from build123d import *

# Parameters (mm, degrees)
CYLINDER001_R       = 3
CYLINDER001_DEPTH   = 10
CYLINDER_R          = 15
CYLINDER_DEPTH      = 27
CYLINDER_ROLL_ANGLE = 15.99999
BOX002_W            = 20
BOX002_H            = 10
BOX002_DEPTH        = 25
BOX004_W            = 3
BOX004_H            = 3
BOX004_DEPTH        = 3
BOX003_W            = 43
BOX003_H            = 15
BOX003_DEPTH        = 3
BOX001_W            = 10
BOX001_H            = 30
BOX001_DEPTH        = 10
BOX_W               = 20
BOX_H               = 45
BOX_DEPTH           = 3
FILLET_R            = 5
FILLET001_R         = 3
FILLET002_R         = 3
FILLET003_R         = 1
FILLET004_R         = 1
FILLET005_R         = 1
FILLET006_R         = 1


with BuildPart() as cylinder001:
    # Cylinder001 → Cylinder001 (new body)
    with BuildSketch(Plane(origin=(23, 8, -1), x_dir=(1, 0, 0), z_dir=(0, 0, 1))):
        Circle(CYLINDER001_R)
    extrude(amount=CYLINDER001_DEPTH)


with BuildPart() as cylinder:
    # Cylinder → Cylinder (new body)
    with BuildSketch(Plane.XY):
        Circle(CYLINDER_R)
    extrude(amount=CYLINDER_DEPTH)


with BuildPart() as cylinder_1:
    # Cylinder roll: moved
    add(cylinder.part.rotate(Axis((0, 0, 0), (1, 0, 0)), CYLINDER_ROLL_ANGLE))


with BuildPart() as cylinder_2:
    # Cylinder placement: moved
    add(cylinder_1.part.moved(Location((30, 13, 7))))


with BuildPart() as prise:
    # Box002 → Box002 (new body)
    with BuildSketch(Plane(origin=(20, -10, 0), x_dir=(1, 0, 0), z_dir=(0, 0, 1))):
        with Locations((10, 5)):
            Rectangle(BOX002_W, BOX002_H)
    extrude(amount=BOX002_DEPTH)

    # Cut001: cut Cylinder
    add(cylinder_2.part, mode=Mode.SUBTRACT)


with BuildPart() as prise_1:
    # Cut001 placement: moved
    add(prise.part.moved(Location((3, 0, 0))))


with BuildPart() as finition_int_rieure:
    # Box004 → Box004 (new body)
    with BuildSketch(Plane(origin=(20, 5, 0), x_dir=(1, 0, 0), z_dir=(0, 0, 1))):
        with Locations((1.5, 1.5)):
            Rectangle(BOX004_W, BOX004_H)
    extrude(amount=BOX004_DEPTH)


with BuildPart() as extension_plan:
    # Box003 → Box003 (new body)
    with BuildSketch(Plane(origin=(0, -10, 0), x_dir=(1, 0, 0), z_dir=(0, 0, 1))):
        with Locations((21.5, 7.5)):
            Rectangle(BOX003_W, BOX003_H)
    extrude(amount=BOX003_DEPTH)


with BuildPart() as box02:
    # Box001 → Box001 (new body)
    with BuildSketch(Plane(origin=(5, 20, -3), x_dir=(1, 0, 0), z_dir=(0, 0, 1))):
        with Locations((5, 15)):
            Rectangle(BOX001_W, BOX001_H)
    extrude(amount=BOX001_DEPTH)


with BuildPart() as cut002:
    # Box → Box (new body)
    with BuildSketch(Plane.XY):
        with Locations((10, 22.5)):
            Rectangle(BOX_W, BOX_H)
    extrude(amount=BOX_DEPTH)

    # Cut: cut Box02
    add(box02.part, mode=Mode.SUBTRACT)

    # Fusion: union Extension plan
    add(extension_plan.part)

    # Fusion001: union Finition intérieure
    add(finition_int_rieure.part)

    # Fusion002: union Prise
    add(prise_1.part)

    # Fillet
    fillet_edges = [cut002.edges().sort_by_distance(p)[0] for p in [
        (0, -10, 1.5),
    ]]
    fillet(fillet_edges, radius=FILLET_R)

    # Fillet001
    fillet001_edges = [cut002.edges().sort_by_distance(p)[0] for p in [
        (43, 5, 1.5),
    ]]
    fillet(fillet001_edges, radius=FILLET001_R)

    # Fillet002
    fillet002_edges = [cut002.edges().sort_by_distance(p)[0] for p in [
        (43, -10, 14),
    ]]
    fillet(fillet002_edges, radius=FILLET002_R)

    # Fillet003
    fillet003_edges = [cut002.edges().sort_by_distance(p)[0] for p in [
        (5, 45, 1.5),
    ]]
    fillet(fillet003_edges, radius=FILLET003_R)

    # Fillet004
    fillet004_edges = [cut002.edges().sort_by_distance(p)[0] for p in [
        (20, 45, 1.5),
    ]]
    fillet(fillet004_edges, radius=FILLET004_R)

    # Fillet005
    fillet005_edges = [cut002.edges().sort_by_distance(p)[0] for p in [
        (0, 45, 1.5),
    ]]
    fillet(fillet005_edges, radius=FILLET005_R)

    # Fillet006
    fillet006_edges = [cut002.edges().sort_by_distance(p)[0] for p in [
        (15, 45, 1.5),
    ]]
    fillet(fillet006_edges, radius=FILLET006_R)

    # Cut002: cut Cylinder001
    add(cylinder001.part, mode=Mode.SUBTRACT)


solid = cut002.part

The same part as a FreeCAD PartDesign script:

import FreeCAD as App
import Part
import Sketcher
Q = App.Units.Quantity


def edges_at(feature, points):
    """Names of the edges that pass closest to the given points."""
    edges = feature.Shape.Edges
    near = lambda p: min(range(len(edges)), key=lambda i: edges[i].distToShape(Part.Vertex(*p))[0])
    return sorted({f"Edge{near(p) + 1}" for p in points})

doc = App.newDocument("Part")
params = doc.addObject("Spreadsheet::Sheet", "Params")
for row, (alias, value) in enumerate([
    ("sketch1_diameter", "6 mm"),
    ("pad1_length", "10 mm"),
    ("sketch2_diameter", "30 mm"),
    ("pad2_length", "27 mm"),
    ("sketch3_width", "20 mm"),
    ("sketch3_height", "10 mm"),
    ("pad3_length", "25 mm"),
    ("sketch4_width", "3 mm"),
    ("pad4_length", "3 mm"),
    ("sketch5_width", "43 mm"),
    ("sketch5_height", "15 mm"),
    ("pad5_length", "3 mm"),
    ("sketch6_width", "10 mm"),
    ("sketch6_height", "30 mm"),
    ("pad6_length", "10 mm"),
    ("sketch7_width", "20 mm"),
    ("sketch7_height", "45 mm"),
    ("pad7_length", "3 mm"),
    ("fillet_radius", "5 mm"),
    ("fillet2_radius", "3 mm"),
    ("fillet3_radius", "3 mm"),
    ("fillet4_radius", "1 mm"),
    ("fillet5_radius", "1 mm"),
    ("fillet6_radius", "1 mm"),
    ("fillet7_radius", "1 mm"),
], start=1):
    params.set(f"A{row}", alias)
    params.set(f"B{row}", "=" + value)
    params.setAlias(f"B{row}", alias)

body = doc.addObject("PartDesign::Body", "Body")

# Sketch on XY plane
sketch1 = body.newObject("Sketcher::SketchObject", "Sketch")
sketch1.AttachmentSupport = (doc.getObject("XY_Plane"), [""])
sketch1.MapMode = "FlatFace"
sketch1.AttachmentOffset = App.Placement(App.Vector(0, 0, -1), App.Rotation())
sketch1.addGeometry(Part.Circle(App.Vector(23, 8, 0), App.Vector(0, 0, 1), 3), False)
sketch1.addConstraint([
    Sketcher.Constraint("Diameter", 0, Q("6 mm")),
    Sketcher.Constraint("DistanceX", -1, 1, 0, 3, Q("23 mm")),
    Sketcher.Constraint("DistanceY", -1, 1, 0, 3, Q("8 mm")),
])
sketch1.setExpression("Constraints[0]", "Params.sketch1_diameter")
pad1 = body.newObject("PartDesign::Pad", "Pad")
pad1.Profile = sketch1
pad1.setExpression("Length", "Params.pad1_length")
body2 = doc.addObject("PartDesign::Body", "Body001")

# Sketch on XY plane
sketch2 = body2.newObject("Sketcher::SketchObject", "Sketch001")
sketch2.AttachmentSupport = (doc.getObject("XY_Plane001"), [""])
sketch2.MapMode = "FlatFace"
sketch2.addGeometry(Part.Circle(App.Vector(0, 0, 0), App.Vector(0, 0, 1), 15), False)
sketch2.addConstraint([
    Sketcher.Constraint("Coincident", 0, 3, -1, 1),
    Sketcher.Constraint("Diameter", 0, Q("30 mm")),
])
sketch2.setExpression("Constraints[1]", "Params.sketch2_diameter")
pad2 = body2.newObject("PartDesign::Pad", "Pad001")
pad2.Profile = sketch2
pad2.setExpression("Length", "Params.pad2_length")
body3 = doc.addObject("PartDesign::Body", "Body002")
doc.recompute()

body2.Placement = App.Placement(App.Vector(0, 0, 0), App.Rotation(App.Vector(1, 0, 0), 15.99999))
boolean = body3.newObject("PartDesign::Boolean", "Boolean")
boolean.Type = "Fuse"
boolean.addObjects([body2])
body4 = doc.addObject("PartDesign::Body", "Body003")
doc.recompute()

body3.Placement = App.Placement(App.Vector(30, 13, 7), App.Rotation(App.Vector(0, 0, 1), 0))
boolean2 = body4.newObject("PartDesign::Boolean", "Boolean001")
boolean2.Type = "Fuse"
boolean2.addObjects([body3])
body5 = doc.addObject("PartDesign::Body", "Body004")

# Sketch on XY plane
sketch3 = body5.newObject("Sketcher::SketchObject", "Sketch002")
sketch3.AttachmentSupport = (doc.getObject("XY_Plane004"), [""])
sketch3.MapMode = "FlatFace"
sketch3.addGeometry([
    Part.LineSegment(App.Vector(20, 0, 0), App.Vector(20, -10, 0)),
    Part.LineSegment(App.Vector(20, -10, 0), App.Vector(40, -10, 0)),
    Part.LineSegment(App.Vector(40, -10, 0), App.Vector(40, 0, 0)),
    Part.LineSegment(App.Vector(40, 0, 0), App.Vector(20, 0, 0)),
], False)
sketch3.addConstraint([
    Sketcher.Constraint("Coincident", 0, 2, 1, 1),
    Sketcher.Constraint("Coincident", 1, 2, 2, 1),
    Sketcher.Constraint("Coincident", 2, 2, 3, 1),
    Sketcher.Constraint("Coincident", 3, 2, 0, 1),
    Sketcher.Constraint("Vertical", 0),
    Sketcher.Constraint("Horizontal", 1),
    Sketcher.Constraint("Vertical", 2),
    Sketcher.Constraint("Horizontal", 3),
    Sketcher.Constraint("PointOnObject", 2, 2, -1),
    Sketcher.Constraint("DistanceX", 1, 1, 1, 2, Q("20 mm")),
    Sketcher.Constraint("DistanceY", 0, 2, 0, 1, Q("10 mm")),
    Sketcher.Constraint("DistanceX", -1, 1, 0, 2, Q("20 mm")),
])
sketch3.setExpression("Constraints[9]", "Params.sketch3_width")
sketch3.setExpression("Constraints[10]", "Params.sketch3_height")
pad3 = body5.newObject("PartDesign::Pad", "Pad002")
pad3.Profile = sketch3
pad3.setExpression("Length", "Params.pad3_length")
doc.recompute()

boolean3 = body5.newObject("PartDesign::Boolean", "Boolean002")
boolean3.Type = "Cut"
boolean3.addObjects([body4])
body6 = doc.addObject("PartDesign::Body", "Body005")
doc.recompute()

body5.Placement = App.Placement(App.Vector(3, 0, 0), App.Rotation(App.Vector(0, 0, 1), 0))
boolean4 = body6.newObject("PartDesign::Boolean", "Boolean003")
boolean4.Type = "Fuse"
boolean4.addObjects([body5])
body7 = doc.addObject("PartDesign::Body", "Body006")

# Sketch on XY plane
sketch4 = body7.newObject("Sketcher::SketchObject", "Sketch003")
sketch4.AttachmentSupport = (doc.getObject("XY_Plane006"), [""])
sketch4.MapMode = "FlatFace"
sketch4.addGeometry([
    Part.LineSegment(App.Vector(20, 8, 0), App.Vector(20, 5, 0)),
    Part.LineSegment(App.Vector(20, 5, 0), App.Vector(23, 5, 0)),
    Part.LineSegment(App.Vector(23, 5, 0), App.Vector(23, 8, 0)),
    Part.LineSegment(App.Vector(23, 8, 0), App.Vector(20, 8, 0)),
], False)
sketch4.addConstraint([
    Sketcher.Constraint("Coincident", 0, 2, 1, 1),
    Sketcher.Constraint("Coincident", 1, 2, 2, 1),
    Sketcher.Constraint("Coincident", 2, 2, 3, 1),
    Sketcher.Constraint("Coincident", 3, 2, 0, 1),
    Sketcher.Constraint("Vertical", 0),
    Sketcher.Constraint("Horizontal", 1),
    Sketcher.Constraint("Vertical", 2),
    Sketcher.Constraint("Horizontal", 3),
    Sketcher.Constraint("Equal", 3, 0),
    Sketcher.Constraint("DistanceX", 1, 1, 1, 2, Q("3 mm")),
    Sketcher.Constraint("DistanceX", -1, 1, 0, 2, Q("20 mm")),
    Sketcher.Constraint("DistanceY", -1, 1, 0, 2, Q("5 mm")),
])
sketch4.setExpression("Constraints[9]", "Params.sketch4_width")
pad4 = body7.newObject("PartDesign::Pad", "Pad003")
pad4.Profile = sketch4
pad4.setExpression("Length", "Params.pad4_length")
body8 = doc.addObject("PartDesign::Body", "Body007")

# Sketch on XY plane
sketch5 = body8.newObject("Sketcher::SketchObject", "Sketch004")
sketch5.AttachmentSupport = (doc.getObject("XY_Plane007"), [""])
sketch5.MapMode = "FlatFace"
sketch5.addGeometry([
    Part.LineSegment(App.Vector(0, 5, 0), App.Vector(0, -10, 0)),
    Part.LineSegment(App.Vector(0, -10, 0), App.Vector(43, -10, 0)),
    Part.LineSegment(App.Vector(43, -10, 0), App.Vector(43, 5, 0)),
    Part.LineSegment(App.Vector(43, 5, 0), App.Vector(0, 5, 0)),
], False)
sketch5.addConstraint([
    Sketcher.Constraint("Coincident", 0, 2, 1, 1),
    Sketcher.Constraint("Coincident", 1, 2, 2, 1),
    Sketcher.Constraint("Coincident", 2, 2, 3, 1),
    Sketcher.Constraint("Coincident", 3, 2, 0, 1),
    Sketcher.Constraint("Vertical", 0),
    Sketcher.Constraint("Horizontal", 1),
    Sketcher.Constraint("Vertical", 2),
    Sketcher.Constraint("Horizontal", 3),
    Sketcher.Constraint("PointOnObject", 0, 2, -2),
    Sketcher.Constraint("DistanceX", 1, 1, 1, 2, Q("43 mm")),
    Sketcher.Constraint("DistanceY", 0, 2, 0, 1, Q("15 mm")),
    Sketcher.Constraint("DistanceY", 0, 2, -1, 1, Q("10 mm")),
])
sketch5.setExpression("Constraints[9]", "Params.sketch5_width")
sketch5.setExpression("Constraints[10]", "Params.sketch5_height")
pad5 = body8.newObject("PartDesign::Pad", "Pad004")
pad5.Profile = sketch5
pad5.setExpression("Length", "Params.pad5_length")
body9 = doc.addObject("PartDesign::Body", "Body008")

# Sketch on XY plane
sketch6 = body9.newObject("Sketcher::SketchObject", "Sketch005")
sketch6.AttachmentSupport = (doc.getObject("XY_Plane008"), [""])
sketch6.MapMode = "FlatFace"
sketch6.AttachmentOffset = App.Placement(App.Vector(0, 0, -3), App.Rotation())
sketch6.addGeometry([
    Part.LineSegment(App.Vector(5, 50, 0), App.Vector(5, 20, 0)),
    Part.LineSegment(App.Vector(5, 20, 0), App.Vector(15, 20, 0)),
    Part.LineSegment(App.Vector(15, 20, 0), App.Vector(15, 50, 0)),
    Part.LineSegment(App.Vector(15, 50, 0), App.Vector(5, 50, 0)),
], False)
sketch6.addConstraint([
    Sketcher.Constraint("Coincident", 0, 2, 1, 1),
    Sketcher.Constraint("Coincident", 1, 2, 2, 1),
    Sketcher.Constraint("Coincident", 2, 2, 3, 1),
    Sketcher.Constraint("Coincident", 3, 2, 0, 1),
    Sketcher.Constraint("Vertical", 0),
    Sketcher.Constraint("Horizontal", 1),
    Sketcher.Constraint("Vertical", 2),
    Sketcher.Constraint("Horizontal", 3),
    Sketcher.Constraint("DistanceX", 1, 1, 1, 2, Q("10 mm")),
    Sketcher.Constraint("DistanceY", 0, 2, 0, 1, Q("30 mm")),
    Sketcher.Constraint("DistanceX", -1, 1, 0, 2, Q("5 mm")),
    Sketcher.Constraint("DistanceY", -1, 1, 0, 2, Q("20 mm")),
])
sketch6.setExpression("Constraints[8]", "Params.sketch6_width")
sketch6.setExpression("Constraints[9]", "Params.sketch6_height")
pad6 = body9.newObject("PartDesign::Pad", "Pad005")
pad6.Profile = sketch6
pad6.setExpression("Length", "Params.pad6_length")
body10 = doc.addObject("PartDesign::Body", "Body009")

# Sketch on XY plane
sketch7 = body10.newObject("Sketcher::SketchObject", "Sketch006")
sketch7.AttachmentSupport = (doc.getObject("XY_Plane009"), [""])
sketch7.MapMode = "FlatFace"
sketch7.addGeometry([
    Part.LineSegment(App.Vector(0, 45, 0), App.Vector(0, 0, 0)),
    Part.LineSegment(App.Vector(0, 0, 0), App.Vector(20, 0, 0)),
    Part.LineSegment(App.Vector(20, 0, 0), App.Vector(20, 45, 0)),
    Part.LineSegment(App.Vector(20, 45, 0), App.Vector(0, 45, 0)),
], False)
sketch7.addConstraint([
    Sketcher.Constraint("Coincident", 0, 2, 1, 1),
    Sketcher.Constraint("Coincident", 1, 2, 2, 1),
    Sketcher.Constraint("Coincident", 2, 2, 3, 1),
    Sketcher.Constraint("Coincident", 3, 2, 0, 1),
    Sketcher.Constraint("Vertical", 0),
    Sketcher.Constraint("Horizontal", 1),
    Sketcher.Constraint("Vertical", 2),
    Sketcher.Constraint("Horizontal", 3),
    Sketcher.Constraint("Coincident", 0, 2, -1, 1),
    Sketcher.Constraint("DistanceX", 1, 1, 1, 2, Q("20 mm")),
    Sketcher.Constraint("DistanceY", 0, 2, 0, 1, Q("45 mm")),
])
sketch7.setExpression("Constraints[9]", "Params.sketch7_width")
sketch7.setExpression("Constraints[10]", "Params.sketch7_height")
pad7 = body10.newObject("PartDesign::Pad", "Pad006")
pad7.Profile = sketch7
pad7.setExpression("Length", "Params.pad7_length")
doc.recompute()

boolean5 = body10.newObject("PartDesign::Boolean", "Boolean004")
boolean5.Type = "Cut"
boolean5.addObjects([body9])
doc.recompute()

boolean6 = body10.newObject("PartDesign::Boolean", "Boolean005")
boolean6.Type = "Fuse"
boolean6.addObjects([body8])
doc.recompute()

boolean7 = body10.newObject("PartDesign::Boolean", "Boolean006")
boolean7.Type = "Fuse"
boolean7.addObjects([body7])
doc.recompute()

boolean8 = body10.newObject("PartDesign::Boolean", "Boolean007")
boolean8.Type = "Fuse"
boolean8.addObjects([body6])
doc.recompute()

fillet = body10.newObject("PartDesign::Fillet", "Fillet")
fillet.Base = (boolean8, edges_at(boolean8, [(0, -10, 1.5)]))
fillet.setExpression("Radius", "Params.fillet_radius")
doc.recompute()

fillet2 = body10.newObject("PartDesign::Fillet", "Fillet001")
fillet2.Base = (fillet, edges_at(fillet, [(43, 5, 1.5)]))
fillet2.setExpression("Radius", "Params.fillet2_radius")
doc.recompute()

fillet3 = body10.newObject("PartDesign::Fillet", "Fillet002")
fillet3.Base = (fillet2, edges_at(fillet2, [(43, -10, 12.5)]))
fillet3.setExpression("Radius", "Params.fillet3_radius")
doc.recompute()

fillet4 = body10.newObject("PartDesign::Fillet", "Fillet003")
fillet4.Base = (fillet3, edges_at(fillet3, [(5, 45, 1.5)]))
fillet4.setExpression("Radius", "Params.fillet4_radius")
doc.recompute()

fillet5 = body10.newObject("PartDesign::Fillet", "Fillet004")
fillet5.Base = (fillet4, edges_at(fillet4, [(20, 45, 1.5)]))
fillet5.setExpression("Radius", "Params.fillet5_radius")
doc.recompute()

fillet6 = body10.newObject("PartDesign::Fillet", "Fillet005")
fillet6.Base = (fillet5, edges_at(fillet5, [(0, 45, 1.5)]))
fillet6.setExpression("Radius", "Params.fillet6_radius")
doc.recompute()

fillet7 = body10.newObject("PartDesign::Fillet", "Fillet006")
fillet7.Base = (fillet6, edges_at(fillet6, [(15, 45, 1.5)]))
fillet7.setExpression("Radius", "Params.fillet7_radius")
doc.recompute()

boolean9 = body10.newObject("PartDesign::Boolean", "Boolean008")
boolean9.Type = "Cut"
boolean9.addObjects([body])

doc.recompute()
